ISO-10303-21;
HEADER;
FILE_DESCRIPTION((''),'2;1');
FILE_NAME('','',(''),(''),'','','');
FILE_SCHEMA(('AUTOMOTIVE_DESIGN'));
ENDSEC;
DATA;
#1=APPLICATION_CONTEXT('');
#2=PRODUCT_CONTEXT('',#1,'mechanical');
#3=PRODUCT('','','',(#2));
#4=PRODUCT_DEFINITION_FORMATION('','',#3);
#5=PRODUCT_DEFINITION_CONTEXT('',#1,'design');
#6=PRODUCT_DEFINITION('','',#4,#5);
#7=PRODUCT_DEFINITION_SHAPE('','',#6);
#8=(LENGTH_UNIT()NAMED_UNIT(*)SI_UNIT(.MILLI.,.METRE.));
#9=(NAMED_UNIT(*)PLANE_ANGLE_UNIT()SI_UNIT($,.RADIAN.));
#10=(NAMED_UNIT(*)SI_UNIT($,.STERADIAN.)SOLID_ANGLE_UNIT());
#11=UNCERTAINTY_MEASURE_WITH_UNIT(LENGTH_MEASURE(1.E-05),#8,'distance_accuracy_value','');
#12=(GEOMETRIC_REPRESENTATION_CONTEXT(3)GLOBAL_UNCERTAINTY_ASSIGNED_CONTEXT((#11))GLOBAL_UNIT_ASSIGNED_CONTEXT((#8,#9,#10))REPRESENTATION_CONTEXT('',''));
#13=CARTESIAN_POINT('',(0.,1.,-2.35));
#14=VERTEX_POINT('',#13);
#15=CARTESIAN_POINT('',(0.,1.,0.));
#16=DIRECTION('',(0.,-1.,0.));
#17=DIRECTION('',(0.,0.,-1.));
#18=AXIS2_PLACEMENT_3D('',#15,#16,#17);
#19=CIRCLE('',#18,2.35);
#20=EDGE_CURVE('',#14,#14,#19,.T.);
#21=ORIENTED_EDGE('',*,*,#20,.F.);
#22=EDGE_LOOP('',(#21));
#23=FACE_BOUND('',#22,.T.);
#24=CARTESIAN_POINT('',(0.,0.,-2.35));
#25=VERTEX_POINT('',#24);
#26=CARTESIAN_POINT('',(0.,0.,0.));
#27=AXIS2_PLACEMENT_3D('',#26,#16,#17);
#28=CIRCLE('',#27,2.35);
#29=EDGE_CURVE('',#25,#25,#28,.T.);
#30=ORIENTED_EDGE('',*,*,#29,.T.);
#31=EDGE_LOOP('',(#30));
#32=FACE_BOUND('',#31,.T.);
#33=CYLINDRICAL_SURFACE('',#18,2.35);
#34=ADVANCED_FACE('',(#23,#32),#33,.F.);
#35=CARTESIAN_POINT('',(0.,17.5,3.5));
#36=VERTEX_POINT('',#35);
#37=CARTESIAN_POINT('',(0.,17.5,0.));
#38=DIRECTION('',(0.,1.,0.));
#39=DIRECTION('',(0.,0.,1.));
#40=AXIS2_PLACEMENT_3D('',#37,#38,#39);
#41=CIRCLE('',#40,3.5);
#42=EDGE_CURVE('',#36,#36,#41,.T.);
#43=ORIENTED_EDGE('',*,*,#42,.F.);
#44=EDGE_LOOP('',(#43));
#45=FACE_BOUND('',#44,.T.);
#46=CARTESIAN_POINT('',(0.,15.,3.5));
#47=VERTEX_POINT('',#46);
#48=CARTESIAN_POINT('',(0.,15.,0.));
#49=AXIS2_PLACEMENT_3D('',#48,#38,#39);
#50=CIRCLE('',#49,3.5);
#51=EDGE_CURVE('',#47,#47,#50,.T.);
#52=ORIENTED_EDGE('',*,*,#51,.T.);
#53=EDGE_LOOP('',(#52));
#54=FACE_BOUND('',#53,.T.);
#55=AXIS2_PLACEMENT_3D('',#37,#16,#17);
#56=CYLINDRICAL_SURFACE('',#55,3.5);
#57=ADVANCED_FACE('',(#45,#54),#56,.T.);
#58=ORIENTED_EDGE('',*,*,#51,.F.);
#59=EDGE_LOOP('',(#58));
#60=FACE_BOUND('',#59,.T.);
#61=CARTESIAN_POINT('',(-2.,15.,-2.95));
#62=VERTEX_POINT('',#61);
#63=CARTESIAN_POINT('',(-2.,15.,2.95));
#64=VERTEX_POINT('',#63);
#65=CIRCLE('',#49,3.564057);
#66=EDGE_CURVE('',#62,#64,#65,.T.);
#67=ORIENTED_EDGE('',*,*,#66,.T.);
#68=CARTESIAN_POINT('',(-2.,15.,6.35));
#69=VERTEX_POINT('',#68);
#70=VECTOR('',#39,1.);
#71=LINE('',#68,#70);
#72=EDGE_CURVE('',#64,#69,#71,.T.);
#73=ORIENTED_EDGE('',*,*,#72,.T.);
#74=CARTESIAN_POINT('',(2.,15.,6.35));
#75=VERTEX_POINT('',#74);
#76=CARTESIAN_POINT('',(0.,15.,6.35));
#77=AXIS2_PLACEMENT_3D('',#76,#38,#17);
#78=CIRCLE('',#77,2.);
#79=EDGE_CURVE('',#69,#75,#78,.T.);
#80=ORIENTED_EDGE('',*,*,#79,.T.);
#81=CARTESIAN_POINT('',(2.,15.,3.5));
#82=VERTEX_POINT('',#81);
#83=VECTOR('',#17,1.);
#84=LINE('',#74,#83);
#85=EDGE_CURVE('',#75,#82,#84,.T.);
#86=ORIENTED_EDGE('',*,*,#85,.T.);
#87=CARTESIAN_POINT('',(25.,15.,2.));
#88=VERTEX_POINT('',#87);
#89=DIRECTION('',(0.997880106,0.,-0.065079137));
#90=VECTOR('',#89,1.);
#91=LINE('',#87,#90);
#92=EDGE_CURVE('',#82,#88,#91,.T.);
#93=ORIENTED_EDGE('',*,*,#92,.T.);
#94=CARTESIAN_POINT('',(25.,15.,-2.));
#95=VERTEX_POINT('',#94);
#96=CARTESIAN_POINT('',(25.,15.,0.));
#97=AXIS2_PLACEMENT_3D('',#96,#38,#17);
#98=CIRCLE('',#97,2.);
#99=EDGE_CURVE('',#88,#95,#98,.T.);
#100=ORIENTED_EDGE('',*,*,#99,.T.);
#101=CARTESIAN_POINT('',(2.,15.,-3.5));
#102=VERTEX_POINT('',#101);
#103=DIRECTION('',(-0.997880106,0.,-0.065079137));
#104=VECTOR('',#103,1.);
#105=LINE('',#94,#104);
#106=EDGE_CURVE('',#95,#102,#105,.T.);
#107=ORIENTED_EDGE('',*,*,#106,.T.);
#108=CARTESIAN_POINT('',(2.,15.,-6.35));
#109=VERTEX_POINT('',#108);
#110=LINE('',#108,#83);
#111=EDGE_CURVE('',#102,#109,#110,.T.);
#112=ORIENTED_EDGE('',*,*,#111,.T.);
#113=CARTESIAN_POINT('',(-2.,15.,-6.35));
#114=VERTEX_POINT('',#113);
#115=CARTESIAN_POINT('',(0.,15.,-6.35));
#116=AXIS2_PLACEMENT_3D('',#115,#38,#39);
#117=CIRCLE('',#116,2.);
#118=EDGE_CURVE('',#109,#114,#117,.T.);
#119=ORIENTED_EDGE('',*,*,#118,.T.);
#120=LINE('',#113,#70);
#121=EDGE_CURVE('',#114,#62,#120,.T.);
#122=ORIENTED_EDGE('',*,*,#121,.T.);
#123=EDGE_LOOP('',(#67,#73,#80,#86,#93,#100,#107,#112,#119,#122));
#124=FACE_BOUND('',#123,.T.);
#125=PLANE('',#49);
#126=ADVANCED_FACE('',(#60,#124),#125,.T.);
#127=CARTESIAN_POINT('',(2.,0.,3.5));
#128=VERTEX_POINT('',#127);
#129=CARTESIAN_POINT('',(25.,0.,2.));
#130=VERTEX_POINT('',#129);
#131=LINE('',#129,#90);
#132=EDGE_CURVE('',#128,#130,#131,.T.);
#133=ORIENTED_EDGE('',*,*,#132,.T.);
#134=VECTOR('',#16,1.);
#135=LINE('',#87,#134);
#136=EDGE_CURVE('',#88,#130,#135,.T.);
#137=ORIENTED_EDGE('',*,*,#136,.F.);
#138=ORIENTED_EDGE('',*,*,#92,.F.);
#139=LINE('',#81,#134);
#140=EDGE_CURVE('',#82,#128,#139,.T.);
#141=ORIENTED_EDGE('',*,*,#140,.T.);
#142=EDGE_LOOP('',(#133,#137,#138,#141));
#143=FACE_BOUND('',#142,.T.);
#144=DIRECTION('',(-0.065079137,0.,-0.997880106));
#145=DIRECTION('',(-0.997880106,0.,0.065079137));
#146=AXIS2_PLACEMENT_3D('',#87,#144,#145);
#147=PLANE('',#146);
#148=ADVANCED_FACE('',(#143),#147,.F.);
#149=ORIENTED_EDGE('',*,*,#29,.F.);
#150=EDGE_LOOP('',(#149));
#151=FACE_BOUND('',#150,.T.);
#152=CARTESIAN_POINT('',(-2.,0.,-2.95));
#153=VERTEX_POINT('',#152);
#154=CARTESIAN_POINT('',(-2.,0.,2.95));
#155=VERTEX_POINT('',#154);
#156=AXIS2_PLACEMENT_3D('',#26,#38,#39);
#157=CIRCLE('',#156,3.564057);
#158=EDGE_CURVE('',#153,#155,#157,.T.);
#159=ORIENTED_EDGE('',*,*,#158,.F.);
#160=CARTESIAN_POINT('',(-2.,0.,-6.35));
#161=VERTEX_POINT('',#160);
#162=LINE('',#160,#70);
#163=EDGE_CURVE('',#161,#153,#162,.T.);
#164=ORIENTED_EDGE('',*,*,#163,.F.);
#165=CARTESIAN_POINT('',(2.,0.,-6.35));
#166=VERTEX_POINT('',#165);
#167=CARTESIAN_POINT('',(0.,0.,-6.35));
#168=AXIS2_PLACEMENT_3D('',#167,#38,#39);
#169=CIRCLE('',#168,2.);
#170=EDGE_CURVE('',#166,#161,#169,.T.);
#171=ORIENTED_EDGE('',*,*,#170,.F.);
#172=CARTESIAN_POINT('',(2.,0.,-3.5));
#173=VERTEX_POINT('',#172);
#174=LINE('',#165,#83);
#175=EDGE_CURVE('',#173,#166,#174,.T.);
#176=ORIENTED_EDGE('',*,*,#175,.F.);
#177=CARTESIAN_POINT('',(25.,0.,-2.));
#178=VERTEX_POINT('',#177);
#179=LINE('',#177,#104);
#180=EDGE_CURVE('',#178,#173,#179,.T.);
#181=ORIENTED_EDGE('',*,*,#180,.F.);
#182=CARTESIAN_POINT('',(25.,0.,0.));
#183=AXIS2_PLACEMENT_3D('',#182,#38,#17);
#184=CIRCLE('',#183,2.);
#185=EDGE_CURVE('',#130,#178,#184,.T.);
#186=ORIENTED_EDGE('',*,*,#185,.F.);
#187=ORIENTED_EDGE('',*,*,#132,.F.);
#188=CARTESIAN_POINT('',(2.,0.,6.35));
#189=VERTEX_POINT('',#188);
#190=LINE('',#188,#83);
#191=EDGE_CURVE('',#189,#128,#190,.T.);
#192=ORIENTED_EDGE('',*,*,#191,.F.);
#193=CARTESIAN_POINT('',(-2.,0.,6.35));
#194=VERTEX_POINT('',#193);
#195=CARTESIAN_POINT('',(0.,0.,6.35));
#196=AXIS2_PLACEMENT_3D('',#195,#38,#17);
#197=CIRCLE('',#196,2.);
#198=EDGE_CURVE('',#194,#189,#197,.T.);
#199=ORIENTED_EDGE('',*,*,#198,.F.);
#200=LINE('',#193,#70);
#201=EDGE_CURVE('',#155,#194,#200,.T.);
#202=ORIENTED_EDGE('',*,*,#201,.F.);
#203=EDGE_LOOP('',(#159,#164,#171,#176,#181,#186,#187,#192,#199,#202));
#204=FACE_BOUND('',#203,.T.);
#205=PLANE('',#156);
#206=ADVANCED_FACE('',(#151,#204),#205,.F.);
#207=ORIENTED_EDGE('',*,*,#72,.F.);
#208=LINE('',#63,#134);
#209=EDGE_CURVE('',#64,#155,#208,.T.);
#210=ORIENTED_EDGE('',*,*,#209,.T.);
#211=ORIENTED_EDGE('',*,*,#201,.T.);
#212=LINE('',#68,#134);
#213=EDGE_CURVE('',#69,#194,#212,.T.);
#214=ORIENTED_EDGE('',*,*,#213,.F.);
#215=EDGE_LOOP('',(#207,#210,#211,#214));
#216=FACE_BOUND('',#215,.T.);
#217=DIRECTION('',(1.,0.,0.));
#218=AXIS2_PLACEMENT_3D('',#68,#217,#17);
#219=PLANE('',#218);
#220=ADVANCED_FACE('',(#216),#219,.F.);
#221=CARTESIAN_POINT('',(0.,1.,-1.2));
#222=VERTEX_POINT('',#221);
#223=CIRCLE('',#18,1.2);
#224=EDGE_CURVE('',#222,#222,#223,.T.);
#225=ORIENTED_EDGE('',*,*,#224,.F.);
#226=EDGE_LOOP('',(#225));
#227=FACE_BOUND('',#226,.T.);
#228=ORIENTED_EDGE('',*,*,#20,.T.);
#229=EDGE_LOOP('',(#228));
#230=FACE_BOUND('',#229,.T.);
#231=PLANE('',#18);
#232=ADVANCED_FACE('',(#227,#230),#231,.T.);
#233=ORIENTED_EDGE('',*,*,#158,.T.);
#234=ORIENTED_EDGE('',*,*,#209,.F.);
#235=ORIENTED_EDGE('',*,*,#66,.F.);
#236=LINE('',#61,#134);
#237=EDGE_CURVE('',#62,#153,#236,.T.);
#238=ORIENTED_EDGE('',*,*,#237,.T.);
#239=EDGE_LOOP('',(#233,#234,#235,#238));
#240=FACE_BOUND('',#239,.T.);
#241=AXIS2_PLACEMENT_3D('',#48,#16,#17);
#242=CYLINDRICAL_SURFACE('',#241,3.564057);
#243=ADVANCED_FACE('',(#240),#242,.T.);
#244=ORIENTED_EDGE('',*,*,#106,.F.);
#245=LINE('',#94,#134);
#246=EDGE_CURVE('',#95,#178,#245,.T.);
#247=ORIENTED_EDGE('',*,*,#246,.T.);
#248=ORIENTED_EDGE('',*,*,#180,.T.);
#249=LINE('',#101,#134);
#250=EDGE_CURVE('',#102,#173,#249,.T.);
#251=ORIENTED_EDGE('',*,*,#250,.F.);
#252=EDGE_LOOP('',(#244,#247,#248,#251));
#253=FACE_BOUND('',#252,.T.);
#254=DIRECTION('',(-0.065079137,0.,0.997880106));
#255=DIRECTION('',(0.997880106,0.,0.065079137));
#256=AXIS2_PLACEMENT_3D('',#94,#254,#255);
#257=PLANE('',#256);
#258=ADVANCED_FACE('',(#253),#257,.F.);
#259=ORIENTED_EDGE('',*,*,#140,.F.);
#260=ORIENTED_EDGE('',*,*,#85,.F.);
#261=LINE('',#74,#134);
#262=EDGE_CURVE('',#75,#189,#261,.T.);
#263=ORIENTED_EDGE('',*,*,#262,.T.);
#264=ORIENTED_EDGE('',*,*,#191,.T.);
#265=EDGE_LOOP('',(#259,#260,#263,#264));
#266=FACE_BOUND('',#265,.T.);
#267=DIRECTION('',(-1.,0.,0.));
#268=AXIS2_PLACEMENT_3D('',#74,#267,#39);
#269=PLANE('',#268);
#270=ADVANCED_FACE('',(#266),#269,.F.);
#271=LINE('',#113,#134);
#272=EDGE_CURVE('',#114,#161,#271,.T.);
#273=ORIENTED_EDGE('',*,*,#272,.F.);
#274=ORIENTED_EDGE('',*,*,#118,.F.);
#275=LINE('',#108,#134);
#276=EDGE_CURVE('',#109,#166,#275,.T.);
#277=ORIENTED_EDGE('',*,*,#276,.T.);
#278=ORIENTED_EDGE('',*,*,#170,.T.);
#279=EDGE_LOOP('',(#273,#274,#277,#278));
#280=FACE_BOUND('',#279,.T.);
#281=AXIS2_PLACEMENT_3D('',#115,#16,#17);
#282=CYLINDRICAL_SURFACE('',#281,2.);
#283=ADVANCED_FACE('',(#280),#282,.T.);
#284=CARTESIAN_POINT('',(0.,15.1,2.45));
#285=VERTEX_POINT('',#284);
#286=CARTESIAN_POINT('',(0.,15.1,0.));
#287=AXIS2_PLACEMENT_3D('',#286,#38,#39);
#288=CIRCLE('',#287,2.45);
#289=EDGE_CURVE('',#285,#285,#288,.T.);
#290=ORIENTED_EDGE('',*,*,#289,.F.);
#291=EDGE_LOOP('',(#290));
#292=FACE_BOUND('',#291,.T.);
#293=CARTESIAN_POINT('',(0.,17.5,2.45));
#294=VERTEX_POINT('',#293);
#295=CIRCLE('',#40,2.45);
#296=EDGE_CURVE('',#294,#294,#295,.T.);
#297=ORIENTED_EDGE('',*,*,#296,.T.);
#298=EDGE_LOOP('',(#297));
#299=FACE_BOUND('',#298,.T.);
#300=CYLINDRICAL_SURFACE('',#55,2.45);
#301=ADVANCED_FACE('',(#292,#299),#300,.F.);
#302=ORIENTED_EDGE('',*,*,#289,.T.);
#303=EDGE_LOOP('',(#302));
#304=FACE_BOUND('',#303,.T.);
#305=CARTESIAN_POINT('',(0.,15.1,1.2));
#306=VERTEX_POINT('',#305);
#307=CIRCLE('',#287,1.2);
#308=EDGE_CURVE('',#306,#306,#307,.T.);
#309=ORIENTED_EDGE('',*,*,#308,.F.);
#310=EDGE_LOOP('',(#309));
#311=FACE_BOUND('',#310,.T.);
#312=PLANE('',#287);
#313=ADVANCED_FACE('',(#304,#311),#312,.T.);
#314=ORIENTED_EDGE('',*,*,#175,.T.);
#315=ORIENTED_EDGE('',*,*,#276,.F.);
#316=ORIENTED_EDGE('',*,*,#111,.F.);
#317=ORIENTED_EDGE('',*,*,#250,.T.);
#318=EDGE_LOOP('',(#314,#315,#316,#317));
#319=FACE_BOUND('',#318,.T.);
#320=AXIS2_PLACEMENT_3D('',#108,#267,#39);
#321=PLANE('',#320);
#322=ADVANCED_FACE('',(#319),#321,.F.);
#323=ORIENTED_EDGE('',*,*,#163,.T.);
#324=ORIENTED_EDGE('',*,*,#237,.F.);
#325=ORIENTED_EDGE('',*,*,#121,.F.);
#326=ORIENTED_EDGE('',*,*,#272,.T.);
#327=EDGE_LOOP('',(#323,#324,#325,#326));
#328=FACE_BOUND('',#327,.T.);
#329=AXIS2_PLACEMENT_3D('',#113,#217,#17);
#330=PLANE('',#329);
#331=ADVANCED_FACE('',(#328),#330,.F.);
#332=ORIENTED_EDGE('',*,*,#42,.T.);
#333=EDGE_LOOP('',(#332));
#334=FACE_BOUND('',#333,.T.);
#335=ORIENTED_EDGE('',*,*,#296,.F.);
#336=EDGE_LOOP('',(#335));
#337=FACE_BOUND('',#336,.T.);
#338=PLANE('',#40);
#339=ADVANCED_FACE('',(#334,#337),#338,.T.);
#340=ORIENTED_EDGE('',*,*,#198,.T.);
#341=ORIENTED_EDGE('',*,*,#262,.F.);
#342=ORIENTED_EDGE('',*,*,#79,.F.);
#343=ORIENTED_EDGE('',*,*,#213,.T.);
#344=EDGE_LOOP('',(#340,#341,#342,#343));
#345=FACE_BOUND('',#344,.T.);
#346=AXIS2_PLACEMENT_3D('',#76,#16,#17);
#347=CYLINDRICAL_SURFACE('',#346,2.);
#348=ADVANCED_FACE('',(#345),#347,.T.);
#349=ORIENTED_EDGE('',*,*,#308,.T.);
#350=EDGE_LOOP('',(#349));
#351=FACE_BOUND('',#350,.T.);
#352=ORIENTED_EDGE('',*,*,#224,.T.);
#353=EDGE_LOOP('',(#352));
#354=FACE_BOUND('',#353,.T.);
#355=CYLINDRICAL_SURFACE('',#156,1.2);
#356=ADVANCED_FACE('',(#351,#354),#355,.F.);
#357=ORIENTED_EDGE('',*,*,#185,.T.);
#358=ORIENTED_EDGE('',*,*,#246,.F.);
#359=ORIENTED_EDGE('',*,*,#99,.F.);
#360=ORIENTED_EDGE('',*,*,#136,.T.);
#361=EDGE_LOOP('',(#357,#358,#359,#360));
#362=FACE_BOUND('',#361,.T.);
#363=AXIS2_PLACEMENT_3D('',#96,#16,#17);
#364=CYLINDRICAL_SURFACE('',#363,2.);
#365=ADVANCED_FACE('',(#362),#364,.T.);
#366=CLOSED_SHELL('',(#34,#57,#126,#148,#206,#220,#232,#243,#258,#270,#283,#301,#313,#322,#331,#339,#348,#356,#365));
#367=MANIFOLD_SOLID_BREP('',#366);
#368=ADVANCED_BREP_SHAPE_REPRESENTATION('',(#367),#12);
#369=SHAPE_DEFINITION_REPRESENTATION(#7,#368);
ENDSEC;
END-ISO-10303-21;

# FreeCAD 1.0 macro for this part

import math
import FreeCAD as App
import Part
import Sketcher
from FreeCAD import Vector
Q = App.Units.Quantity

doc = App.newDocument("Part")
body = doc.addObject("PartDesign::Body", "Body")

# Sketch on XZ plane
sketch1 = body.newObject("Sketcher::SketchObject", "Sketch")
sketch1.AttachmentSupport = (doc.getObject("XZ_Plane"), [""])
sketch1.MapMode = "FlatFace"
sketch1.addGeometry([
    Part.LineSegment(Vector(2, -3.5, 0), Vector(2, -6.3, 0)),  # 0
    Part.ArcOfCircle(Part.Circle(Vector(0, -6.3, 0), Vector(0, 0, 1), 2), math.radians(180), math.radians(360)),  # 1
    Part.LineSegment(Vector(-2, -6.3, 0), Vector(-2, -3, 0)),  # 2
    Part.ArcOfCircle(Part.Circle(Vector(0, 0, 0), Vector(0, 0, 1), 3.6), math.radians(124), math.radians(236)),  # 3
    Part.LineSegment(Vector(-2, 3, 0), Vector(-2, 6.3, 0)),  # 4
    Part.ArcOfCircle(Part.Circle(Vector(0, 6.3, 0), Vector(0, 0, 1), 2), math.radians(0), math.radians(180)),  # 5
    Part.LineSegment(Vector(2, 6.3, 0), Vector(2, 3.5, 0)),  # 6
    Part.LineSegment(Vector(2, 3.5, 0), Vector(25, 2, 0)),  # 7
    Part.ArcOfCircle(Part.Circle(Vector(25, 0, 0), Vector(0, 0, 1), 2), math.radians(-90), math.radians(90)),  # 8
    Part.LineSegment(Vector(25, -2, 0), Vector(2, -3.5, 0)),  # 9
], False)
sketch1.addConstraint([
    Sketcher.Constraint("Tangent", 0, 2, 1, 2),
    Sketcher.Constraint("Tangent", 1, 1, 2, 1),
    Sketcher.Constraint("Coincident", 2, 2, 3, 2),
    Sketcher.Constraint("Coincident", 3, 1, 4, 1),
    Sketcher.Constraint("Tangent", 4, 2, 5, 2),
    Sketcher.Constraint("Tangent", 5, 1, 6, 1),
    Sketcher.Constraint("Coincident", 6, 2, 7, 1),
    Sketcher.Constraint("Coincident", 7, 2, 8, 2),
    Sketcher.Constraint("Coincident", 8, 1, 9, 1),
    Sketcher.Constraint("Coincident", 9, 2, 0, 1),
    Sketcher.Constraint("Vertical", 0),
    Sketcher.Constraint("Vertical", 2),
    Sketcher.Constraint("Vertical", 4),
    Sketcher.Constraint("Vertical", 6),
    Sketcher.Constraint("Coincident", 3, 3, -1, 1),
    Sketcher.Constraint("Equal", 1, 5),
    Sketcher.Constraint("Equal", 5, 8),
    Sketcher.Constraint("Symmetric", 1, 3, 5, 3, -1, 1),
    Sketcher.Constraint("Symmetric", 7, 2, 8, 1, -1),
    Sketcher.Constraint("Symmetric", 6, 2, 9, 2, -1),
    Sketcher.Constraint("Vertical", 8, 3, 7, 2),
    Sketcher.Constraint("Radius", 1, Q("2 mm")),
    Sketcher.Constraint("DistanceY", 2, 1, 2, 2, Q("3.4 mm")),
    Sketcher.Constraint("DistanceX", -1, 1, 8, 3, Q("25 mm")),
    Sketcher.Constraint("DistanceY", 0, 2, 0, 1, Q("2.85 mm")),
    Sketcher.Constraint("DistanceY", -1, 1, 6, 2, Q("3.5 mm")),
])
pad1 = body.newObject("PartDesign::Pad", "Pad")
pad1.Profile = sketch1
pad1.Length = 15
pad1.Reversed = True

# Sketch on XZ plane
sketch2 = body.newObject("Sketcher::SketchObject", "Sketch001")
sketch2.AttachmentSupport = (doc.getObject("XZ_Plane"), [""])
sketch2.MapMode = "FlatFace"
sketch2.addGeometry(Part.Circle(Vector(0, 0, 0), Vector(0, 0, 1), 2.4), False)
sketch2.addConstraint([
    Sketcher.Constraint("Coincident", 0, 3, -1, 1),
    Sketcher.Constraint("Diameter", 0, Q("4.7 mm")),
])
pocket1 = body.newObject("PartDesign::Pocket", "Pocket")
pocket1.Profile = sketch2
pocket1.Length = 1

# Sketch on XZ plane
sketch3 = body.newObject("Sketcher::SketchObject", "Sketch002")
sketch3.AttachmentSupport = (doc.getObject("XZ_Plane"), [""])
sketch3.MapMode = "FlatFace"
sketch3.AttachmentOffset = App.Placement(Vector(0, 0, -15), App.Rotation())
sketch3.addGeometry([
    Part.Circle(Vector(0, 0, 0), Vector(0, 0, 1), 3.5),
    Part.Circle(Vector(0, 0, 0), Vector(0, 0, 1), 2.5),
], False)
sketch3.addConstraint([
    Sketcher.Constraint("Coincident", 0, 3, -1, 1),
    Sketcher.Constraint("Coincident", 1, 3, -1, 1),
    Sketcher.Constraint("Diameter", 0, Q("7 mm")),
    Sketcher.Constraint("Diameter", 1, Q("4.9 mm")),
])
pad2 = body.newObject("PartDesign::Pad", "Pad001")
pad2.Profile = sketch3
pad2.Length = 2.5
pad2.Reversed = True

# Sketch on XZ plane
sketch4 = body.newObject("Sketcher::SketchObject", "Sketch003")
sketch4.AttachmentSupport = (doc.getObject("XZ_Plane"), [""])
sketch4.MapMode = "FlatFace"
sketch4.AttachmentOffset = App.Placement(Vector(0, 0, -15), App.Rotation())
sketch4.addGeometry(Part.Circle(Vector(0, 0, 0), Vector(0, 0, 1), 1.2), False)
sketch4.addConstraint([
    Sketcher.Constraint("Coincident", 0, 3, -1, 1),
    Sketcher.Constraint("Diameter", 0, Q("2.4 mm")),
])
pocket2 = body.newObject("PartDesign::Pocket", "Pocket001")
pocket2.Profile = sketch4
pocket2.Type = "ThroughAll"
pocket2.Reversed = True

# Sketch on XZ plane
sketch5 = body.newObject("Sketcher::SketchObject", "Sketch004")
sketch5.AttachmentSupport = (doc.getObject("XZ_Plane"), [""])
sketch5.MapMode = "FlatFace"
sketch5.AttachmentOffset = App.Placement(Vector(0, 0, -15), App.Rotation())
sketch5.addGeometry([
    Part.Circle(Vector(0, 0, 0), Vector(0, 0, 1), 2.5),
    Part.Circle(Vector(0, 0, 0), Vector(0, 0, 1), 1.2),
], False)
sketch5.addConstraint([
    Sketcher.Constraint("Coincident", 0, 3, -1, 1),
    Sketcher.Constraint("Coincident", 1, 3, -1, 1),
    Sketcher.Constraint("Diameter", 0, Q("4.9 mm")),
    Sketcher.Constraint("Diameter", 1, Q("2.4 mm")),
])
pad3 = body.newObject("PartDesign::Pad", "Pad002")
pad3.Profile = sketch5
pad3.Length = 0.1
pad3.Reversed = True

doc.recompute()
